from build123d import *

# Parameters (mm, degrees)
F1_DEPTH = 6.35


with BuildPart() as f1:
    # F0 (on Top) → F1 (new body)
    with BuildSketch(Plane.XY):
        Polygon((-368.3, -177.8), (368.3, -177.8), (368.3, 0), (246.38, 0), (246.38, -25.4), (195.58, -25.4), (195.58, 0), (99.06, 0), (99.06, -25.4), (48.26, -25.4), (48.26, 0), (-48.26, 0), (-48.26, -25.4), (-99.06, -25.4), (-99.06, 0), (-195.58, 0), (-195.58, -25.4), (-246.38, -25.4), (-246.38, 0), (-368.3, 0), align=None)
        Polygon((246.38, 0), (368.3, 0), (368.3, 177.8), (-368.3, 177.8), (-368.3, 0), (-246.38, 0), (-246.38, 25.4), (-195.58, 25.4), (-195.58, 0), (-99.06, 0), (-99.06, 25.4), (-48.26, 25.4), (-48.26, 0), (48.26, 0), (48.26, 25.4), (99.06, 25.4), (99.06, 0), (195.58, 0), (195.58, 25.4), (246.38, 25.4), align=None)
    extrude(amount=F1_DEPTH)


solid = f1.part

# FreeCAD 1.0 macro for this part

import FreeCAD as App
import Part
import Sketcher
from FreeCAD import Vector
Q = App.Units.Quantity


def add_polygon(sketch, points):
    """Adds a closed chain of lines whose ends are joined by coincident constraints."""
    first, n = sketch.GeometryCount, len(points)
    for a, b in zip(points, points[1:] + points[:1]):
        sketch.addGeometry(Part.LineSegment(App.Vector(*a, 0), App.Vector(*b, 0)), False)
    for i in range(n):
        sketch.addConstraint(Sketcher.Constraint("Coincident", first + i, 2, first + (i + 1) % n, 1))

doc = App.newDocument("Part")
body = doc.addObject("PartDesign::Body", "Body")

# Sketch on XY plane
sketch1 = body.newObject("Sketcher::SketchObject", "Sketch")
sketch1.AttachmentSupport = (doc.getObject("XY_Plane"), [""])
sketch1.MapMode = "FlatFace"
add_polygon(sketch1, [(-368.3, -177.8), (368.3, -177.8), (368.3, 177.8), (-368.3, 177.8)])  # lines 0-3
add_polygon(sketch1, [(246.38, -25.4), (195.58, -25.4), (195.58, 25.4), (246.38, 25.4)])  # lines 4-7
add_polygon(sketch1, [(99.06, -25.4), (48.26, -25.4), (48.26, 25.4), (99.06, 25.4)])  # lines 8-11
add_polygon(sketch1, [(-48.26, -25.4), (-99.06, -25.4), (-99.06, 25.4), (-48.26, 25.4)])  # lines 12-15
add_polygon(sketch1, [(-195.58, -25.4), (-246.38, -25.4), (-246.38, 25.4), (-195.58, 25.4)])  # lines 16-19
sketch1.addConstraint(Sketcher.Constraint("Horizontal", 0))
sketch1.addConstraint(Sketcher.Constraint("Vertical", 1))
sketch1.addConstraint(Sketcher.Constraint("Horizontal", 2))
sketch1.addConstraint(Sketcher.Constraint("Vertical", 3))
sketch1.addConstraint(Sketcher.Constraint("Horizontal", 4))
sketch1.addConstraint(Sketcher.Constraint("Vertical", 5))
sketch1.addConstraint(Sketcher.Constraint("Horizontal", 6))
sketch1.addConstraint(Sketcher.Constraint("Vertical", 7))
sketch1.addConstraint(Sketcher.Constraint("Horizontal", 8))
sketch1.addConstraint(Sketcher.Constraint("Vertical", 9))
sketch1.addConstraint(Sketcher.Constraint("Horizontal", 10))
sketch1.addConstraint(Sketcher.Constraint("Vertical", 11))
sketch1.addConstraint(Sketcher.Constraint("Horizontal", 12))
sketch1.addConstraint(Sketcher.Constraint("Vertical", 13))
sketch1.addConstraint(Sketcher.Constraint("Horizontal", 14))
sketch1.addConstraint(Sketcher.Constraint("Vertical", 15))
sketch1.addConstraint(Sketcher.Constraint("Horizontal", 16))
sketch1.addConstraint(Sketcher.Constraint("Vertical", 17))
sketch1.addConstraint(Sketcher.Constraint("Horizontal", 18))
sketch1.addConstraint(Sketcher.Constraint("Vertical", 19))
sketch1.addConstraint(Sketcher.Constraint("Symmetric", 0, 2, 2, 2, -1, 1))
sketch1.addConstraint(Sketcher.Constraint("Symmetric", 10, 2, 12, 2, -1, 1))
sketch1.addConstraint(Sketcher.Constraint("Symmetric", 8, 2, 14, 2, -1, 1))
sketch1.addConstraint(Sketcher.Constraint("Symmetric", 6, 2, 16, 2, -1, 1))
sketch1.addConstraint(Sketcher.Constraint("Symmetric", 4, 2, 18, 2, -1, 1))
sketch1.addConstraint(Sketcher.Constraint("Horizontal", 7, 2, 8, 2))
sketch1.addConstraint(Sketcher.Constraint("Horizontal", 6, 2, 9, 2))
sketch1.addConstraint(Sketcher.Constraint("Horizontal", 11, 2, 12, 2))
sketch1.addConstraint(Sketcher.Constraint("Equal", 6, 8))
sketch1.addConstraint(Sketcher.Constraint("Equal", 18, 5))
sketch1.addConstraint(Sketcher.Constraint("DistanceX", 0, 1, 0, 2, Q("29 in")))
sketch1.addConstraint(Sketcher.Constraint("DistanceX", 4, 2, 4, 1, Q("2 in")))
sketch1.addConstraint(Sketcher.Constraint("DistanceY", 1, 1, 1, 2, Q("14 in")))
sketch1.addConstraint(Sketcher.Constraint("DistanceX", -1, 1, 4, 2, Q("7.7 in")))
sketch1.addConstraint(Sketcher.Constraint("DistanceX", -1, 1, 8, 2, Q("1.9 in")))
pad1 = body.newObject("PartDesign::Pad", "Pad")
pad1.Profile = sketch1
pad1.Length = Q("0.25 in")

doc.recompute()
